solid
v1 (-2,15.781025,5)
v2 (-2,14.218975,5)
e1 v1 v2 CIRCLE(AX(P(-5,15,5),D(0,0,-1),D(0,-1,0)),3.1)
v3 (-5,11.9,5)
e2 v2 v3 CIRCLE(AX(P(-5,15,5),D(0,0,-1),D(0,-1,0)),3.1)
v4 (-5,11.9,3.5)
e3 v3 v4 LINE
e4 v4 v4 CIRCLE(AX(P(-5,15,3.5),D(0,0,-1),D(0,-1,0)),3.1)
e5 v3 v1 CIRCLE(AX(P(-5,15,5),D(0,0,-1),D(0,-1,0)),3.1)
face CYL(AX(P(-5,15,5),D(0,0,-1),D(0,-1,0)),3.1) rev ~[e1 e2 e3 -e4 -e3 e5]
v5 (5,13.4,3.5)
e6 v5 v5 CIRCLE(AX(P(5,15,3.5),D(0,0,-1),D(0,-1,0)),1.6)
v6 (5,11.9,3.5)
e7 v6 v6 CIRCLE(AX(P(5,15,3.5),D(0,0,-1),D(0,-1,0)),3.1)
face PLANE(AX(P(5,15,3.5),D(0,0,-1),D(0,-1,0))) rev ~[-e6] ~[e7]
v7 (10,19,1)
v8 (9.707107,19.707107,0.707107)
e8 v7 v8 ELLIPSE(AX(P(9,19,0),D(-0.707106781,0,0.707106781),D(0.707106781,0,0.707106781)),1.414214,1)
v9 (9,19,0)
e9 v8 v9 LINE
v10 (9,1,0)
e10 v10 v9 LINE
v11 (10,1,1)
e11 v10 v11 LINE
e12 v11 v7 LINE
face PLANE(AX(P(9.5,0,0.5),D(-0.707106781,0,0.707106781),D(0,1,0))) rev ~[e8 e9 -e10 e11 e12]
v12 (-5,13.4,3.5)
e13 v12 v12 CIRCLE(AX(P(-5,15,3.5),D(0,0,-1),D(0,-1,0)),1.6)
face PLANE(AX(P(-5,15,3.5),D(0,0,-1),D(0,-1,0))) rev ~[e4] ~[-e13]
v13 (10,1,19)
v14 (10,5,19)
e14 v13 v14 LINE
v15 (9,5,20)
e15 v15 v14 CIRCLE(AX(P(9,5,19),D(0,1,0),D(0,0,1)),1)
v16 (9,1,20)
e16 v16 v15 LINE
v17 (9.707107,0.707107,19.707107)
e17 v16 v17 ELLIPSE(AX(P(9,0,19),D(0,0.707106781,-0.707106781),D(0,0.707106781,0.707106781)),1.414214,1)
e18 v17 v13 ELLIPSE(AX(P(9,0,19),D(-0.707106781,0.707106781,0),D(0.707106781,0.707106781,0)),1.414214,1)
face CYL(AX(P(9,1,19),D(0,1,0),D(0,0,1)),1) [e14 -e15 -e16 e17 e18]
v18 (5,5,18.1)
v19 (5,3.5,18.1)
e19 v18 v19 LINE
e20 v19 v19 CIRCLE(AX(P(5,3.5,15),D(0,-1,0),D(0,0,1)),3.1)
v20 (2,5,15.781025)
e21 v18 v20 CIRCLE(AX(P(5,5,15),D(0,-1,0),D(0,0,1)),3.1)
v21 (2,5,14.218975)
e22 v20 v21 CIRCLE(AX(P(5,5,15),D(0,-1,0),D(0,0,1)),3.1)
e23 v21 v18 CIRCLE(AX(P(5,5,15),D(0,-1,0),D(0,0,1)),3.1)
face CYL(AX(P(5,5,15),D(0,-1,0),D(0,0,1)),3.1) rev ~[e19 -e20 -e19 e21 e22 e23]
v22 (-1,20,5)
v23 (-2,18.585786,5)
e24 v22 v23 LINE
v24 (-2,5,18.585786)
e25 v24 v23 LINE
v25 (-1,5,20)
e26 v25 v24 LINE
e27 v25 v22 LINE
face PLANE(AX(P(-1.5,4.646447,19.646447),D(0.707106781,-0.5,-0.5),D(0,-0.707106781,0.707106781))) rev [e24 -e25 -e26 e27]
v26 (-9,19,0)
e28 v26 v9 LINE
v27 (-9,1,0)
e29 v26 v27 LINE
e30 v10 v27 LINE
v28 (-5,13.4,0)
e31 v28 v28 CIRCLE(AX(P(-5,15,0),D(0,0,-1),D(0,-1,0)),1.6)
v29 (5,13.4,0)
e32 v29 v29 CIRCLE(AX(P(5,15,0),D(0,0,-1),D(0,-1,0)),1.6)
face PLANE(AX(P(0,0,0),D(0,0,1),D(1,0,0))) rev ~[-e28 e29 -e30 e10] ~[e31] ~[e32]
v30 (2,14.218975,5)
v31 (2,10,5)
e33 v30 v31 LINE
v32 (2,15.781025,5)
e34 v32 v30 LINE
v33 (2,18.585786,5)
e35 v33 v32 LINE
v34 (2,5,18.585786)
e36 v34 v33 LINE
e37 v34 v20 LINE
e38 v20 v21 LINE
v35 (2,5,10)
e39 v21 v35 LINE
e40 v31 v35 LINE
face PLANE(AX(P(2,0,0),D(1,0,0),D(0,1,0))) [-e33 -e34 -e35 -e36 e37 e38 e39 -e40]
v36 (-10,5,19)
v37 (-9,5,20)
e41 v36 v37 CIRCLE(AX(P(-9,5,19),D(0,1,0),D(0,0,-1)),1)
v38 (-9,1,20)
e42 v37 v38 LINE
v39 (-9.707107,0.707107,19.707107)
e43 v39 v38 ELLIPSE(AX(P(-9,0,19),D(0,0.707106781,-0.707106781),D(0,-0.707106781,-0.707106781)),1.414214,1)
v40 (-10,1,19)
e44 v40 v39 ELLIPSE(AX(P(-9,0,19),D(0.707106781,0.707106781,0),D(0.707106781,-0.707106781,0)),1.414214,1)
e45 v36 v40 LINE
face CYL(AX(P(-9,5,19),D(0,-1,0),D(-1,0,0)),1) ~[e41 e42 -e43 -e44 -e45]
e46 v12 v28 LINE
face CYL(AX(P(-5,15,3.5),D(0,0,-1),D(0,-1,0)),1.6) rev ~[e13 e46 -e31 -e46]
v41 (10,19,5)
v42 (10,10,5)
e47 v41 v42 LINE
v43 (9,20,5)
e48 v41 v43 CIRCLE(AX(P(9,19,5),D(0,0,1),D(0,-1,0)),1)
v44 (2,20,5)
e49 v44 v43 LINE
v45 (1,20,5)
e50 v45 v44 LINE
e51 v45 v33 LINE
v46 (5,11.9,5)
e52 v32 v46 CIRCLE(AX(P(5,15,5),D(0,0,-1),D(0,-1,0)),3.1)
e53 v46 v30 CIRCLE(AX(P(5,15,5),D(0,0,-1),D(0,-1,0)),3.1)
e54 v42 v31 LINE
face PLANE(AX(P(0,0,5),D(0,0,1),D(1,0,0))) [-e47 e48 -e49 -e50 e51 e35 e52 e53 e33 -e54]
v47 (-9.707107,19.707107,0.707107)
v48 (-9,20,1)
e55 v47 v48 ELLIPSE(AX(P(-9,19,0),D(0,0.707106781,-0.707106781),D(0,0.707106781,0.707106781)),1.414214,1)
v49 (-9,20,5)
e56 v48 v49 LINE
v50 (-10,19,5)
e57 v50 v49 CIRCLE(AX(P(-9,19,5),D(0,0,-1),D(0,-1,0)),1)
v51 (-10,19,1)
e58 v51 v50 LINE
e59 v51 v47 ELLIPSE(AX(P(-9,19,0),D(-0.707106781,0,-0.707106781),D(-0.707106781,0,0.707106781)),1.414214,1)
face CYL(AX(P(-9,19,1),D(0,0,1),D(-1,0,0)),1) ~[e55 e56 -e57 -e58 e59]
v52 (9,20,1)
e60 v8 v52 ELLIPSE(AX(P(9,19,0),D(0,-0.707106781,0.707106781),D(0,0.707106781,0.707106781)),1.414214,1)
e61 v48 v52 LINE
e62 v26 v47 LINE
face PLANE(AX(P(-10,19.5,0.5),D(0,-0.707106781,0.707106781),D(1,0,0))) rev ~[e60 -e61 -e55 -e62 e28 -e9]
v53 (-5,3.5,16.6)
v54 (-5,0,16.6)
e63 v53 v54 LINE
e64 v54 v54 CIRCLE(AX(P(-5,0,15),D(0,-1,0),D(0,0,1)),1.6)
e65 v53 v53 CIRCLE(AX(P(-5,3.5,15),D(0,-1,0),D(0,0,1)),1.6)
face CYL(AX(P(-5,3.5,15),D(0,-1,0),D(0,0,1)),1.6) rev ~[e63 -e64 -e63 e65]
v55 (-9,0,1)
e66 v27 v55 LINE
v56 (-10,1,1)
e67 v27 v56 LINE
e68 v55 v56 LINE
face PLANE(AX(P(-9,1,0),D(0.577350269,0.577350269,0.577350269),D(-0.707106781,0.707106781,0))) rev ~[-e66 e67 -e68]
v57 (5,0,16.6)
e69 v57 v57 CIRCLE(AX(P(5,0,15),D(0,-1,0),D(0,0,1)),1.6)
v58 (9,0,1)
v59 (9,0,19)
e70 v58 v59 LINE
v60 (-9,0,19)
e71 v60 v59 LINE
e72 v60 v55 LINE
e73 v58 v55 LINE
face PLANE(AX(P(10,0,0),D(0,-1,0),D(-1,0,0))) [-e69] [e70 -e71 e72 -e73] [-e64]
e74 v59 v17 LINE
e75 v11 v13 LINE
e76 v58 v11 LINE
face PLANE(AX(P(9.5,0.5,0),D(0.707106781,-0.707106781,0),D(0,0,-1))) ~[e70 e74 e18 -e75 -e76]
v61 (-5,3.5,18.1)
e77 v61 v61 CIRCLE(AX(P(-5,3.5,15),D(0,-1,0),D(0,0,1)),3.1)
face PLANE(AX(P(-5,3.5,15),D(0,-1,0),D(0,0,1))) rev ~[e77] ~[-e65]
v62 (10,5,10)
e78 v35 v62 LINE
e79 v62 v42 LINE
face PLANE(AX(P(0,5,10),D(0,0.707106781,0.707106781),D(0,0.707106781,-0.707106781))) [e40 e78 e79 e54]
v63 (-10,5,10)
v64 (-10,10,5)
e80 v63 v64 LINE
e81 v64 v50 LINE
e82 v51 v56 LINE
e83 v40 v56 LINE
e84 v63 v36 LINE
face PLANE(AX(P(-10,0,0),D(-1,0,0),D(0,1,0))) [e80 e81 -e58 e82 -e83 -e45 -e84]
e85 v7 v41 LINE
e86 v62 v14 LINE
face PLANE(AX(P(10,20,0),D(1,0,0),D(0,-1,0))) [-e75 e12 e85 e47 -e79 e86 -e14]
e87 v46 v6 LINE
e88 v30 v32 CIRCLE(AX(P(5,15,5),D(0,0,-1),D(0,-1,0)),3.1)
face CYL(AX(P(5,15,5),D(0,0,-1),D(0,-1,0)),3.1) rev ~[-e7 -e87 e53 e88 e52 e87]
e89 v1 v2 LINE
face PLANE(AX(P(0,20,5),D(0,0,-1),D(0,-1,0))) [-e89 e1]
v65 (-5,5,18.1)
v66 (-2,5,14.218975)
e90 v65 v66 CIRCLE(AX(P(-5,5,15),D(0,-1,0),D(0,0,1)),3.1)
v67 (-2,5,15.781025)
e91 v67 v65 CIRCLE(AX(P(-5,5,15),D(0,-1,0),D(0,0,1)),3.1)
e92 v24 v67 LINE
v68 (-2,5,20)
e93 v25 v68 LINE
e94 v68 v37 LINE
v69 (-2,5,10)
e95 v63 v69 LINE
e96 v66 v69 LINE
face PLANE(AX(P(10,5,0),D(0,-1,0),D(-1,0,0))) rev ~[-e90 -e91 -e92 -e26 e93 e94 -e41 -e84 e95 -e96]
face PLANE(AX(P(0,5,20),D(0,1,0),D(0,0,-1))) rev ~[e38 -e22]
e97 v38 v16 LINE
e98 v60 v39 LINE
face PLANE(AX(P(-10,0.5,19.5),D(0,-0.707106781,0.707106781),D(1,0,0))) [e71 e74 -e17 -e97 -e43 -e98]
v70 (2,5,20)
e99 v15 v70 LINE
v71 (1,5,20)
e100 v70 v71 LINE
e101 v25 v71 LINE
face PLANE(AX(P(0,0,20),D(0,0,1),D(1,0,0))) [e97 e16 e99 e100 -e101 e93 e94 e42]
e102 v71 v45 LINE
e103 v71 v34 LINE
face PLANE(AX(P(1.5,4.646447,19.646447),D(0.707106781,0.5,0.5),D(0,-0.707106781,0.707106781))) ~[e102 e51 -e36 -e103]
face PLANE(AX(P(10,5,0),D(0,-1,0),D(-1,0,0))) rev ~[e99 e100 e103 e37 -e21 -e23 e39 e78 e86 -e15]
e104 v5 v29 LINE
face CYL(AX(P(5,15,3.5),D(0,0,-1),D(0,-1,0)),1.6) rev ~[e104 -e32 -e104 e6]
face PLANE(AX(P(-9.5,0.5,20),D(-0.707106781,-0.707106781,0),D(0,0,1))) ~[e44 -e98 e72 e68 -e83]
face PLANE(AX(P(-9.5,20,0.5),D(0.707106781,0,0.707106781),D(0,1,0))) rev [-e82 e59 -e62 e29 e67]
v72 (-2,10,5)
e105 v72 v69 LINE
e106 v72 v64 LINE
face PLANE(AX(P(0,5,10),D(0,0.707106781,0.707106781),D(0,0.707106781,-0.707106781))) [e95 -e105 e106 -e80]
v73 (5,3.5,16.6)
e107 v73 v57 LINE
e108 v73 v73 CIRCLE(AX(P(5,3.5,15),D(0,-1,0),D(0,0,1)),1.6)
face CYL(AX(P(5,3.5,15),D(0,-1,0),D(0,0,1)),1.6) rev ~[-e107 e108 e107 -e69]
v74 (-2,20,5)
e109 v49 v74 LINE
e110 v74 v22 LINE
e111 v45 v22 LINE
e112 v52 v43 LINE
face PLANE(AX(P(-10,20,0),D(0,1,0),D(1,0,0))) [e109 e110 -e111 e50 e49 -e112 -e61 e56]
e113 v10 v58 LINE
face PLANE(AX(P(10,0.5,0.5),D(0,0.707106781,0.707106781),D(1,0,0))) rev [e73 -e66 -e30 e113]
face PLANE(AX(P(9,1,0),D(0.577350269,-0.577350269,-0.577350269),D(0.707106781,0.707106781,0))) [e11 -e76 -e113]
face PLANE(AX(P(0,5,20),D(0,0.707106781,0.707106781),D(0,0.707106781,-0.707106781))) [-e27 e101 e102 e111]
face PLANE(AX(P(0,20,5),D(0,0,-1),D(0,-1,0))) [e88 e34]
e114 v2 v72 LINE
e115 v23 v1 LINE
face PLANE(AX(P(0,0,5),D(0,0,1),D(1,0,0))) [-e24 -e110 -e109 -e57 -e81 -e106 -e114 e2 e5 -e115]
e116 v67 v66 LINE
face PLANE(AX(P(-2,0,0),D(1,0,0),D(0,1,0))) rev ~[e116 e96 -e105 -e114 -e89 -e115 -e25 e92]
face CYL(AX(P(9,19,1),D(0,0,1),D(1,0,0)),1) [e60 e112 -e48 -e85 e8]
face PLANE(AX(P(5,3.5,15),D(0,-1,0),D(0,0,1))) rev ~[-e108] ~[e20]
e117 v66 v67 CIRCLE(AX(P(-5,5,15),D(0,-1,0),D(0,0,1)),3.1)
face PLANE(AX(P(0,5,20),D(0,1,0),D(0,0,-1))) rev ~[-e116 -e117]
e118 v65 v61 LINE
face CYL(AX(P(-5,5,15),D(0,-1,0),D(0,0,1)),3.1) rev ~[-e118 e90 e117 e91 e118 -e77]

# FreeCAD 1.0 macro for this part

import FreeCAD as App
import Part
import Sketcher
from FreeCAD import Vector


def edges_at(feature, points):
    """Names of the edges that pass closest to the given points."""
    edges = feature.Shape.Edges
    near = lambda p: min(range(len(edges)), key=lambda i: edges[i].distToShape(Part.Vertex(*p))[0])
    return sorted({f"Edge{near(p) + 1}" for p in points})

doc = App.newDocument("Part")
params = doc.addObject("Spreadsheet::Sheet", "Params")
for row, (alias, value) in enumerate([
    ("sketch1_width", "20 mm"),
    ("pad1_length", "5 mm"),
    ("sketch2_height", "5 mm"),
    ("sketch2_width", "20 mm"),
    ("pad2_length", "20 mm"),
    ("sketch3_diameter", "3.2 mm"),
    ("hole_diameter", "3.2 mm"),
    ("hole_cbore_diameter", "6.2 mm"),
    ("hole_cbore_depth", "1.5 mm"),
    ("sketch4_diameter", "3.2 mm"),
    ("hole2_diameter", "3.2 mm"),
    ("hole2_cbore_diameter", "6.2 mm"),
    ("hole2_cbore_depth", "1.5 mm"),
    ("sketch5_width", "15 mm"),
    ("pad3_length", "4 mm"),
    ("sketch6_width", "5 mm"),
    ("pad4_length", "20 mm"),
    ("chamfer_size", "1 mm"),
    ("fillet_radius", "1 mm"),
], start=1):
    params.set(f"A{row}", alias)
    params.set(f"B{row}", "=" + value)
    params.setAlias(f"B{row}", alias)

body = doc.addObject("PartDesign::Body", "Body")

# Sketch on XY plane
sketch1 = doc.addObject("Sketcher::SketchObject", "Sketch")
body.addObject(sketch1)
sketch1.AttachmentSupport = (doc.XY_Plane, [""])
sketch1.MapMode = "FlatFace"
sketch1.addGeometry(Part.LineSegment(Vector(-10, 0, 0), Vector(10, 0, 0)), False)
sketch1.addGeometry(Part.LineSegment(Vector(10, 0, 0), Vector(10, 20, 0)), False)
sketch1.addGeometry(Part.LineSegment(Vector(10, 20, 0), Vector(-10, 20, 0)), False)
sketch1.addGeometry(Part.LineSegment(Vector(-10, 20, 0), Vector(-10, 0, 0)), False)
sketch1.addConstraint(Sketcher.Constraint("Coincident", 0, 2, 1, 1))
sketch1.addConstraint(Sketcher.Constraint("Coincident", 1, 2, 2, 1))
sketch1.addConstraint(Sketcher.Constraint("Coincident", 2, 2, 3, 1))
sketch1.addConstraint(Sketcher.Constraint("Coincident", 3, 2, 0, 1))
sketch1.addConstraint(Sketcher.Constraint("Horizontal", 0))
sketch1.addConstraint(Sketcher.Constraint("Vertical", 1))
sketch1.addConstraint(Sketcher.Constraint("Horizontal", 2))
sketch1.addConstraint(Sketcher.Constraint("Vertical", 3))
sketch1.addConstraint(Sketcher.Constraint("Symmetric", 0, 2, 3, 2, -1, 1))
sketch1.addConstraint(Sketcher.Constraint("Equal", 2, 1))
sketch1.addConstraint(Sketcher.Constraint("DistanceX", 0, 1, 0, 2, 20.0))
sketch1.setExpression("Constraints[10]", "Params.sketch1_width")
pad1 = doc.addObject("PartDesign::Pad", "Pad")
body.addObject(pad1)
pad1.Profile = sketch1
pad1.setExpression("Length", "Params.pad1_length")

# Sketch on XY plane
sketch2 = doc.addObject("Sketcher::SketchObject", "Sketch001")
body.addObject(sketch2)
sketch2.AttachmentSupport = (doc.XY_Plane, [""])
sketch2.MapMode = "FlatFace"
sketch2.addGeometry(Part.LineSegment(Vector(-10, 5, 0), Vector(-10, 0, 0)), False)
sketch2.addGeometry(Part.LineSegment(Vector(-10, 0, 0), Vector(10, 0, 0)), False)
sketch2.addGeometry(Part.LineSegment(Vector(10, 0, 0), Vector(10, 5, 0)), False)
sketch2.addGeometry(Part.LineSegment(Vector(10, 5, 0), Vector(-10, 5, 0)), False)
sketch2.addConstraint(Sketcher.Constraint("Coincident", 0, 2, 1, 1))
sketch2.addConstraint(Sketcher.Constraint("Coincident", 1, 2, 2, 1))
sketch2.addConstraint(Sketcher.Constraint("Coincident", 2, 2, 3, 1))
sketch2.addConstraint(Sketcher.Constraint("Coincident", 3, 2, 0, 1))
sketch2.addConstraint(Sketcher.Constraint("Vertical", 0))
sketch2.addConstraint(Sketcher.Constraint("Horizontal", 1))
sketch2.addConstraint(Sketcher.Constraint("Vertical", 2))
sketch2.addConstraint(Sketcher.Constraint("Horizontal", 3))
sketch2.addConstraint(Sketcher.Constraint("Symmetric", 0, 2, 1, 2, -1, 1))
sketch2.addConstraint(Sketcher.Constraint("DistanceY", 0, 2, 0, 1, 5.0))
sketch2.addConstraint(Sketcher.Constraint("DistanceX", 1, 1, 1, 2, 20.0))
sketch2.setExpression("Constraints[9]", "Params.sketch2_height")
sketch2.setExpression("Constraints[10]", "Params.sketch2_width")
pad2 = doc.addObject("PartDesign::Pad", "Pad001")
body.addObject(pad2)
pad2.Profile = sketch2
pad2.setExpression("Length", "Params.pad2_length")

# Sketch on XZ plane
sketch3 = doc.addObject("Sketcher::SketchObject", "Sketch002")
body.addObject(sketch3)
sketch3.AttachmentSupport = (doc.XZ_Plane, [""])
sketch3.MapMode = "FlatFace"
sketch3.AttachmentOffset = App.Placement(Vector(0, 0, -5), App.Rotation())
sketch3.addGeometry(Part.Circle(Vector(-5, 15, 0), Vector(0, 0, 1), 1.6), False)
sketch3.addGeometry(Part.Circle(Vector(5, 15, 0), Vector(0, 0, 1), 1.6), False)
sketch3.addConstraint(Sketcher.Constraint("Equal", 0, 1))
sketch3.addConstraint(Sketcher.Constraint("Symmetric", 0, 3, 1, 3, -2))
sketch3.addConstraint(Sketcher.Constraint("Diameter", 0, 3.2))
sketch3.addConstraint(Sketcher.Constraint("DistanceX", 0, 3, -1, 1, 5.0))
sketch3.addConstraint(Sketcher.Constraint("DistanceY", -1, 1, 0, 3, 15.0))
sketch3.setExpression("Constraints[2]", "Params.sketch3_diameter")
doc.recompute()
hole = doc.addObject("PartDesign::Hole", "Hole")
body.addObject(hole)
hole.Profile = sketch3
hole.ThreadType = "None"
hole.setExpression("Diameter", "Params.hole_diameter")
hole.DepthType = "ThroughAll"
hole.HoleCutType = "Counterbore"
hole.setExpression("HoleCutDiameter", "Params.hole_cbore_diameter")
hole.setExpression("HoleCutDepth", "Params.hole_cbore_depth")
hole.Reversed = True

# Sketch on XY plane
sketch4 = doc.addObject("Sketcher::SketchObject", "Sketch003")
body.addObject(sketch4)
sketch4.AttachmentSupport = (doc.XY_Plane, [""])
sketch4.MapMode = "FlatFace"
sketch4.AttachmentOffset = App.Placement(Vector(0, 0, 5), App.Rotation())
sketch4.addGeometry(Part.Circle(Vector(-5, 15, 0), Vector(0, 0, 1), 1.6), False)
sketch4.addGeometry(Part.Circle(Vector(5, 15, 0), Vector(0, 0, 1), 1.6), False)
sketch4.addConstraint(Sketcher.Constraint("Equal", 0, 1))
sketch4.addConstraint(Sketcher.Constraint("Symmetric", 0, 3, 1, 3, -2))
sketch4.addConstraint(Sketcher.Constraint("Diameter", 0, 3.2))
sketch4.addConstraint(Sketcher.Constraint("DistanceX", 0, 3, -1, 1, 5.0))
sketch4.addConstraint(Sketcher.Constraint("DistanceY", -1, 1, 0, 3, 15.0))
sketch4.setExpression("Constraints[2]", "Params.sketch4_diameter")
doc.recompute()
hole2 = doc.addObject("PartDesign::Hole", "Hole001")
body.addObject(hole2)
hole2.Profile = sketch4
hole2.ThreadType = "None"
hole2.setExpression("Diameter", "Params.hole2_diameter")
hole2.DepthType = "ThroughAll"
hole2.HoleCutType = "Counterbore"
hole2.setExpression("HoleCutDiameter", "Params.hole2_cbore_diameter")
hole2.setExpression("HoleCutDepth", "Params.hole2_cbore_depth")

# Sketch on YZ plane
sketch5 = doc.addObject("Sketcher::SketchObject", "Sketch004")
body.addObject(sketch5)
sketch5.AttachmentSupport = (doc.YZ_Plane, [""])
sketch5.MapMode = "FlatFace"
sketch5.addGeometry(Part.LineSegment(Vector(20, 5, 0), Vector(5, 20, 0)), False)
sketch5.addGeometry(Part.LineSegment(Vector(5, 20, 0), Vector(5, 5, 0)), False)
sketch5.addGeometry(Part.LineSegment(Vector(5, 5, 0), Vector(20, 5, 0)), False)
sketch5.addConstraint(Sketcher.Constraint("Coincident", 0, 2, 1, 1))
sketch5.addConstraint(Sketcher.Constraint("Coincident", 1, 2, 2, 1))
sketch5.addConstraint(Sketcher.Constraint("Coincident", 2, 2, 0, 1))
sketch5.addConstraint(Sketcher.Constraint("Vertical", 1))
sketch5.addConstraint(Sketcher.Constraint("Horizontal", 2))
sketch5.addConstraint(Sketcher.Constraint("Equal", 2, 1))
sketch5.addConstraint(Sketcher.Constraint("DistanceX", 2, 1, 2, 2, 15.0))
sketch5.addConstraint(Sketcher.Constraint("DistanceX", -1, 1, 0, 2, 5.0))
sketch5.addConstraint(Sketcher.Constraint("DistanceY", -1, 1, 0, 2, 20.0))
sketch5.setExpression("Constraints[6]", "Params.sketch5_width")
pad3 = doc.addObject("PartDesign::Pad", "Pad002")
body.addObject(pad3)
pad3.Profile = sketch5
pad3.setExpression("Length", "Params.pad3_length")
pad3.Midplane = True

# Sketch on YZ plane
sketch6 = doc.addObject("Sketcher::SketchObject", "Sketch005")
body.addObject(sketch6)
sketch6.AttachmentSupport = (doc.YZ_Plane, [""])
sketch6.MapMode = "FlatFace"
sketch6.addGeometry(Part.LineSegment(Vector(10, 5, 0), Vector(5, 10, 0)), False)
sketch6.addGeometry(Part.LineSegment(Vector(5, 10, 0), Vector(5, 5, 0)), False)
sketch6.addGeometry(Part.LineSegment(Vector(5, 5, 0), Vector(10, 5, 0)), False)
sketch6.addConstraint(Sketcher.Constraint("Coincident", 0, 2, 1, 1))
sketch6.addConstraint(Sketcher.Constraint("Coincident", 1, 2, 2, 1))
sketch6.addConstraint(Sketcher.Constraint("Coincident", 2, 2, 0, 1))
sketch6.addConstraint(Sketcher.Constraint("Vertical", 1))
sketch6.addConstraint(Sketcher.Constraint("Horizontal", 2))
sketch6.addConstraint(Sketcher.Constraint("Equal", 2, 1))
sketch6.addConstraint(Sketcher.Constraint("DistanceX", 2, 1, 2, 2, 5.0))
sketch6.addConstraint(Sketcher.Constraint("DistanceX", -1, 1, 0, 2, 5.0))
sketch6.addConstraint(Sketcher.Constraint("DistanceY", -1, 1, 1, 2, 5.0))
sketch6.setExpression("Constraints[6]", "Params.sketch6_width")
pad4 = doc.addObject("PartDesign::Pad", "Pad003")
body.addObject(pad4)
pad4.Profile = sketch6
pad4.setExpression("Length", "Params.pad4_length")
pad4.Midplane = True
doc.recompute()

chamfer = doc.addObject("PartDesign::Chamfer", "Chamfer")
body.addObject(chamfer)
chamfer.Base = (pad4, edges_at(pad4, [
    (-10, 0, 10),
    (0, 0, 20),
    (10, 0, 10),
    (0, 0, 0),
    (-10, 10, 0),
    (10, 10, 0),
    (0, 20, 0),
    (-2, 12.5, 12.5),
    (2, 12.5, 12.5),
]))
chamfer.setExpression("Size", "Params.chamfer_size")
doc.recompute()

fillet = doc.addObject("PartDesign::Fillet", "Fillet")
body.addObject(fillet)
fillet.Base = (chamfer, edges_at(chamfer, [
    (-10, 3, 20),
    (-10, 20, 3),
    (10, 20, 3),
    (10, 3, 20),
]))
fillet.setExpression("Radius", "Params.fillet_radius")

doc.recompute()
